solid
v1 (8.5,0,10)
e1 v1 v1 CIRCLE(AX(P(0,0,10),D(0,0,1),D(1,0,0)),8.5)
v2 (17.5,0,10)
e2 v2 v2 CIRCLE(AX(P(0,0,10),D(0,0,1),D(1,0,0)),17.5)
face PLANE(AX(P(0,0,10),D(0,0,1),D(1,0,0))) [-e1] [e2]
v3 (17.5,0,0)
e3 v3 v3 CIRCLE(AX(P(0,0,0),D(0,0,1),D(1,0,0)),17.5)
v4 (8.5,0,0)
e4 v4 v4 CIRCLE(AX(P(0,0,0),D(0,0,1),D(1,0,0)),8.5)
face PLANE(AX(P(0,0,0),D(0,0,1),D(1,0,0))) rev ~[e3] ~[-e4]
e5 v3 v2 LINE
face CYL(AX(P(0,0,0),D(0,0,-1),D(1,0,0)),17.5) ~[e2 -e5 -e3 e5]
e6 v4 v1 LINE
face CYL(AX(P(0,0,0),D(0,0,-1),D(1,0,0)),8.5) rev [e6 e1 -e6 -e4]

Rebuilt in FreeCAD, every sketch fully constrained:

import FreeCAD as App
import Part
import Sketcher
from FreeCAD import Vector
Q = App.Units.Quantity

doc = App.newDocument("Part")
params = doc.addObject("Spreadsheet::Sheet", "Params")
for row, (alias, value) in enumerate([
    ("sketch1_diameter", "35 mm"),
    ("sketch1_diameter2", "17 mm"),
    ("pad1_length", "10 mm"),
], start=1):
    params.set(f"A{row}", alias)
    params.set(f"B{row}", "=" + value)
    params.setAlias(f"B{row}", alias)

body = doc.addObject("PartDesign::Body", "Body")

sketch1 = doc.addObject("Sketcher::SketchObject", "Sketch")
body.addObject(sketch1)
sketch1.AttachmentSupport = (doc.XY_Plane, [""])
sketch1.MapMode = "FlatFace"
sketch1.addGeometry(Part.Circle(Vector(0, 0, 0), Vector(0, 0, 1), 18), False)
sketch1.addGeometry(Part.Circle(Vector(0, 0, 0), Vector(0, 0, 1), 8), False)
sketch1.addConstraint(Sketcher.Constraint("Coincident", 0, 3, -1, 1))
sketch1.addConstraint(Sketcher.Constraint("Coincident", 1, 3, -1, 1))
sketch1.addConstraint(Sketcher.Constraint("Diameter", 0, Q("35 mm")))
sketch1.addConstraint(Sketcher.Constraint("Diameter", 1, Q("17 mm")))
sketch1.setExpression("Constraints[2]", "Params.sketch1_diameter")
sketch1.setExpression("Constraints[3]", "Params.sketch1_diameter2")
pad1 = doc.addObject("PartDesign::Pad", "Pad")
body.addObject(pad1)
pad1.Profile = sketch1
pad1.setExpression("Length", "Params.pad1_length")

doc.recompute()
